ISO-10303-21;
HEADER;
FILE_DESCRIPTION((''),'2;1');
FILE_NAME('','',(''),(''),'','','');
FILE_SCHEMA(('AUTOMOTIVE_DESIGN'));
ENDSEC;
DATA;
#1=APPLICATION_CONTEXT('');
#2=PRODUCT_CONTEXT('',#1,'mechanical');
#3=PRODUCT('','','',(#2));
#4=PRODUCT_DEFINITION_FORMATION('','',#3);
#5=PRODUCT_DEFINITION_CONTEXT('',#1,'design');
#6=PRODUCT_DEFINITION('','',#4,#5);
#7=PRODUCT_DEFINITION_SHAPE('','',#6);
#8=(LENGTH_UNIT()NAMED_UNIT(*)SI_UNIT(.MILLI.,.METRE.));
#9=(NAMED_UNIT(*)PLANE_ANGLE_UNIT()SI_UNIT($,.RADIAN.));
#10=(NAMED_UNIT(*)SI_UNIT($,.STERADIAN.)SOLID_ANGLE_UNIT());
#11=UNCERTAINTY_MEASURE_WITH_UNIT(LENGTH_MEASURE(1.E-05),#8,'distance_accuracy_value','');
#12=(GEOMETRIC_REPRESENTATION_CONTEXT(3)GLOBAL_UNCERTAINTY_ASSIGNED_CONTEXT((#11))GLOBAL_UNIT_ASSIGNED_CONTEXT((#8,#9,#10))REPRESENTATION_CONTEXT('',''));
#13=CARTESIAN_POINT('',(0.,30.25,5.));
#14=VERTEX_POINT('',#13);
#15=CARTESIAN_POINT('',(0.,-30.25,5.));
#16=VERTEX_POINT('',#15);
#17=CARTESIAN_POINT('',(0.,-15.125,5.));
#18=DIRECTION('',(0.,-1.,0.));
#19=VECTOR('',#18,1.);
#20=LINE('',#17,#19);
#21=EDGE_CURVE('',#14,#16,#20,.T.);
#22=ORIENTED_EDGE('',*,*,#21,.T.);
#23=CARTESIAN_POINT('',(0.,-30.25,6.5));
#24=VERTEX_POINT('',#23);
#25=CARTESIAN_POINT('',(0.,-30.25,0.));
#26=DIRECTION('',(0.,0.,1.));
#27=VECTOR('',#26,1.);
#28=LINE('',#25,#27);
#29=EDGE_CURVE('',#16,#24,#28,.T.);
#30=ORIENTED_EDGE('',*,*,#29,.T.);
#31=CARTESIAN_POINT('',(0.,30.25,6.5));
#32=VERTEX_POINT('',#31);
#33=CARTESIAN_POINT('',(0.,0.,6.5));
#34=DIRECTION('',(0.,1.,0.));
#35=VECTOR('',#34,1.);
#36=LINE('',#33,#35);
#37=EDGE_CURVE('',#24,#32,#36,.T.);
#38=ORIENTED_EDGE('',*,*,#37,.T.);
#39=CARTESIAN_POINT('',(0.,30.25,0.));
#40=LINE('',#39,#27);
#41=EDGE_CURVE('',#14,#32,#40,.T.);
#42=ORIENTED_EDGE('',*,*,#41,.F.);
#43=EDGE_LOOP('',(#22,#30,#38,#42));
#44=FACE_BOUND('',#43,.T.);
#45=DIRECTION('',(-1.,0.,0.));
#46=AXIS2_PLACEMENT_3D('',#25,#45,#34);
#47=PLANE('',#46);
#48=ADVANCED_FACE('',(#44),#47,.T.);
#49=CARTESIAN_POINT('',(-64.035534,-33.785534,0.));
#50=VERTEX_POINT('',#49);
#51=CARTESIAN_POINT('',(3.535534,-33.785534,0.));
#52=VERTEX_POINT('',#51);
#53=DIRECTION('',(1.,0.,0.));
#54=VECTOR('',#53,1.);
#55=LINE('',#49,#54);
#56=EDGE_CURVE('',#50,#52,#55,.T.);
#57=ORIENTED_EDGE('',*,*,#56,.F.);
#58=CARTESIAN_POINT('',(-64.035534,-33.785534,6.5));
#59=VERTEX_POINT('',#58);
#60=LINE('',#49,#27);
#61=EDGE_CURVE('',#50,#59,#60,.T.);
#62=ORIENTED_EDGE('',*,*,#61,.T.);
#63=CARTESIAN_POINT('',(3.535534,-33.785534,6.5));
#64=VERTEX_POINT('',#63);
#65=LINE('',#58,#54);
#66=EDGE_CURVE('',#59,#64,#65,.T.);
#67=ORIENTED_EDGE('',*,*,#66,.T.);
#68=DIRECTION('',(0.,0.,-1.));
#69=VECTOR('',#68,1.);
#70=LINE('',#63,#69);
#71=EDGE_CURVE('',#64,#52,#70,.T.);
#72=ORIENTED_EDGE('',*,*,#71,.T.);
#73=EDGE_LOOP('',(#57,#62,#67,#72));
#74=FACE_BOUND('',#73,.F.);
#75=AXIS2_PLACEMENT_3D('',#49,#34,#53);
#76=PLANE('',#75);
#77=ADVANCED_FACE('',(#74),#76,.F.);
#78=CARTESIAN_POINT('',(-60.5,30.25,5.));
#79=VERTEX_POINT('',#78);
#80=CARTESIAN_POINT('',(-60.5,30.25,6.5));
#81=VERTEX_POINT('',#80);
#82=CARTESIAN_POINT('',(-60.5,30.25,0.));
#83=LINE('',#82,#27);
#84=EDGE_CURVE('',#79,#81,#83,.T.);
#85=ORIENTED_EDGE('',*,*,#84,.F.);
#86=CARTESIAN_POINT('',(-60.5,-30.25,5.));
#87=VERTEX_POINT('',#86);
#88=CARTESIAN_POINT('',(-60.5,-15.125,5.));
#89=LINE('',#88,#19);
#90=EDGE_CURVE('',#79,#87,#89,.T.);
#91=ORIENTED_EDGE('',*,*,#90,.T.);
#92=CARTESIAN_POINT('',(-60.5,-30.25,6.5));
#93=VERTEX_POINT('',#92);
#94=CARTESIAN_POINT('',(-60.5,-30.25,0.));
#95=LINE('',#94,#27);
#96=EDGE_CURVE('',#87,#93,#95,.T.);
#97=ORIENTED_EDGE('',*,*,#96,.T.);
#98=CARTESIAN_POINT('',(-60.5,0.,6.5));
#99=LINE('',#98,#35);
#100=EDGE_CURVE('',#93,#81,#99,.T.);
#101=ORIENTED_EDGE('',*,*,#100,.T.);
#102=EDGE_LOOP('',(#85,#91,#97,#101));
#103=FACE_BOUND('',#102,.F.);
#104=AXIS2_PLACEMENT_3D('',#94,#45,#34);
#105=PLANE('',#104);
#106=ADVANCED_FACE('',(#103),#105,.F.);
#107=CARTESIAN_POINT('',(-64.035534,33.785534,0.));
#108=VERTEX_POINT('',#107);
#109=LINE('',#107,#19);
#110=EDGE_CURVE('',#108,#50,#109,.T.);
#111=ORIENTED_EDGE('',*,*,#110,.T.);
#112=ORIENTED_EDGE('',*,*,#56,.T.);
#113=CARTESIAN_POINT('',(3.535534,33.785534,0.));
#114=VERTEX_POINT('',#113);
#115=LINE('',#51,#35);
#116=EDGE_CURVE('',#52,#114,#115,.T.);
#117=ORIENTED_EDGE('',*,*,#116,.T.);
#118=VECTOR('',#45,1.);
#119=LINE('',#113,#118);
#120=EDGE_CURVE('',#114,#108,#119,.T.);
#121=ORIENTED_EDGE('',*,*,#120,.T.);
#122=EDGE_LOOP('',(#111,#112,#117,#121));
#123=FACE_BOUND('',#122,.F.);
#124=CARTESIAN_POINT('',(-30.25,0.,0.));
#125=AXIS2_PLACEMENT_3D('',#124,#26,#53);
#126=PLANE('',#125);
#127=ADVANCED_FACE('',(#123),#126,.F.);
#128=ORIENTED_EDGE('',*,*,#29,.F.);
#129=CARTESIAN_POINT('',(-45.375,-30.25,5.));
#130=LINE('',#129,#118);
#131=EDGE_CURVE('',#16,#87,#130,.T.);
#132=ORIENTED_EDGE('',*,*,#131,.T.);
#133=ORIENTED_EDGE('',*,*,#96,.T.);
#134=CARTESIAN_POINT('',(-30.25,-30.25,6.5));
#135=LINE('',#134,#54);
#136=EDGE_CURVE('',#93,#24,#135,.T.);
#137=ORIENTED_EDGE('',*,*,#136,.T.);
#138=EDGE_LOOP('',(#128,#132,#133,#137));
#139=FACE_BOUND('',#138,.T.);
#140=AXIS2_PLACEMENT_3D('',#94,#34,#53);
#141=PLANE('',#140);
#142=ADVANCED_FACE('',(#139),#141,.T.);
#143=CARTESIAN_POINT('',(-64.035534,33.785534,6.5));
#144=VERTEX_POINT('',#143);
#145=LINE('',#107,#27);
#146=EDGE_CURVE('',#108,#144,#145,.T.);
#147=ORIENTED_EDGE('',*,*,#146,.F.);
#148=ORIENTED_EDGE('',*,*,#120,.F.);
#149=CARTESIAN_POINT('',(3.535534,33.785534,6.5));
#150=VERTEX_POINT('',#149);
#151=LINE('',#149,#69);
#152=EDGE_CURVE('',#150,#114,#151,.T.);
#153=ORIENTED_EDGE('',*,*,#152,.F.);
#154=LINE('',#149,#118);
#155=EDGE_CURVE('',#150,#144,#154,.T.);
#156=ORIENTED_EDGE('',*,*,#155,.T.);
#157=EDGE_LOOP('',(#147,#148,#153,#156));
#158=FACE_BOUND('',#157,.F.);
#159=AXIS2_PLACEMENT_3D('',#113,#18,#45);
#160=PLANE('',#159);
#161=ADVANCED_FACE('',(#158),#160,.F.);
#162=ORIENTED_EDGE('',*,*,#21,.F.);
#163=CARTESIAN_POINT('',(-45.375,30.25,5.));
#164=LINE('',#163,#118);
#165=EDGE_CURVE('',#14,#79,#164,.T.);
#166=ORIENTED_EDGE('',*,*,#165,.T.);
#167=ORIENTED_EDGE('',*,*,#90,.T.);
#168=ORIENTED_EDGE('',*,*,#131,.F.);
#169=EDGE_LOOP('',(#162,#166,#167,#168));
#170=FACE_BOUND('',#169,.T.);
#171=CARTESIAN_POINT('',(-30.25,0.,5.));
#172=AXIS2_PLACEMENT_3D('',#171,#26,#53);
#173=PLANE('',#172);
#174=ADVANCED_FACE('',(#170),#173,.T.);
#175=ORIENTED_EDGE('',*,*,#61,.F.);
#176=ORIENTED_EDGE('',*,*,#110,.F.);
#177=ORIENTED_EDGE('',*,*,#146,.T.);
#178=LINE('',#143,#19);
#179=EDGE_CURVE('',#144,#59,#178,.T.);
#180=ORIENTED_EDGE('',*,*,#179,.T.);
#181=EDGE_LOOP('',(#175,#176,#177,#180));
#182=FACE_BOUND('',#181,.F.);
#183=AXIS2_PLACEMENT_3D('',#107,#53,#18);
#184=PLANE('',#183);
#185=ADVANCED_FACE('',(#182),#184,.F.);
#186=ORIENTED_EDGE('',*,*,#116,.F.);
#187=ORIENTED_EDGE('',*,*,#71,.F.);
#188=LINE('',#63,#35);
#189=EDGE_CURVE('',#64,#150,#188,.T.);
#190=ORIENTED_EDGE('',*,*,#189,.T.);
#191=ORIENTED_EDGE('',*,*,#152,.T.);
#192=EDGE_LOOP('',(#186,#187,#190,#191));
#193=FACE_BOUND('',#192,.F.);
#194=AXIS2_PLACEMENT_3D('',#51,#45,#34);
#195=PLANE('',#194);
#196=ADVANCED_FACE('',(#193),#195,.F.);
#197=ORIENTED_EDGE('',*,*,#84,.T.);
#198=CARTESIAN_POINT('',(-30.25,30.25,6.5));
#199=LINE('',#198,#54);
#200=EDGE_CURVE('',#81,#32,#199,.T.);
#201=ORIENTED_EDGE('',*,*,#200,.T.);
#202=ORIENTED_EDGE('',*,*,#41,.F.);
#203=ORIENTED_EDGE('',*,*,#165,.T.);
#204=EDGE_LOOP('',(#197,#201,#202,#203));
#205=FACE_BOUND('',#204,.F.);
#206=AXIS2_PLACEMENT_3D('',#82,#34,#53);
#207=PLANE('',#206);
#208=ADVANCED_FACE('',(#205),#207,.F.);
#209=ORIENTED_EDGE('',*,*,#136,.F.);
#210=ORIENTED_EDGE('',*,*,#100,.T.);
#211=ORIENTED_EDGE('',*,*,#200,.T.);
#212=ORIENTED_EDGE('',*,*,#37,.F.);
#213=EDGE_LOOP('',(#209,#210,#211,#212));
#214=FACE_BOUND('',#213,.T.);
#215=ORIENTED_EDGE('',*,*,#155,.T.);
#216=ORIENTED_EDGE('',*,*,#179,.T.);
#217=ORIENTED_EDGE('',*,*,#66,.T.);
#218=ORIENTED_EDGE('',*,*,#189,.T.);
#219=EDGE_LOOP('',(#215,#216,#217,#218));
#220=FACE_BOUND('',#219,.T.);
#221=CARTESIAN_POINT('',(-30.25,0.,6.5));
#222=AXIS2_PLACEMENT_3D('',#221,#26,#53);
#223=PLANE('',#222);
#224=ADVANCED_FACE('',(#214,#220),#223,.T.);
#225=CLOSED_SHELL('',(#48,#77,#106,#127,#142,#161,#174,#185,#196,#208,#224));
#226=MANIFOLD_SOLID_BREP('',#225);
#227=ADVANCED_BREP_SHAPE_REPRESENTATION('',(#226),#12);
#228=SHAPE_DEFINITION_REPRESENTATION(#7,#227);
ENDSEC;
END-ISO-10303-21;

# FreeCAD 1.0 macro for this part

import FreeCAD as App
import Part
import Sketcher
from FreeCAD import Vector
Q = App.Units.Quantity

doc = App.newDocument("Part")
body = doc.addObject("PartDesign::Body", "Body")

# Sketch on XY plane
sketch1 = body.newObject("Sketcher::SketchObject", "Sketch")
sketch1.AttachmentSupport = (doc.getObject("XY_Plane"), [""])
sketch1.MapMode = "FlatFace"
sketch1.addGeometry([
    Part.LineSegment(Vector(3.535534, 33.785534, 0), Vector(-64.035534, 33.785534, 0)),
    Part.LineSegment(Vector(-64.035534, 33.785534, 0), Vector(-64.035534, -33.785534, 0)),
    Part.LineSegment(Vector(-64.035534, -33.785534, 0), Vector(3.535534, -33.785534, 0)),
    Part.LineSegment(Vector(3.535534, -33.785534, 0), Vector(3.535534, 33.785534, 0)),
], False)
sketch1.addConstraint([
    Sketcher.Constraint("Coincident", 0, 2, 1, 1),
    Sketcher.Constraint("Coincident", 1, 2, 2, 1),
    Sketcher.Constraint("Coincident", 2, 2, 3, 1),
    Sketcher.Constraint("Coincident", 3, 2, 0, 1),
    Sketcher.Constraint("Horizontal", 0),
    Sketcher.Constraint("Vertical", 1),
    Sketcher.Constraint("Horizontal", 2),
    Sketcher.Constraint("Vertical", 3),
    Sketcher.Constraint("Equal", 2, 1),
    Sketcher.Constraint("DistanceX", 0, 2, 0, 1, Q("67.571068 mm")),
    Sketcher.Constraint("DistanceX", 0, 2, -1, 1, Q("64.035534 mm")),
    Sketcher.Constraint("DistanceY", -1, 1, 0, 2, Q("33.785534 mm")),
])
pad1 = body.newObject("PartDesign::Pad", "Pad")
pad1.Profile = sketch1
pad1.Length = 5

# Sketch on XY plane
sketch2 = body.newObject("Sketcher::SketchObject", "Sketch001")
sketch2.AttachmentSupport = (doc.getObject("XY_Plane"), [""])
sketch2.MapMode = "FlatFace"
sketch2.addGeometry([
    Part.LineSegment(Vector(3.535534, 33.785534, 0), Vector(-64.035534, 33.785534, 0)),  # 0
    Part.LineSegment(Vector(-64.035534, 33.785534, 0), Vector(-64.035534, -33.785534, 0)),  # 1
    Part.LineSegment(Vector(-64.035534, -33.785534, 0), Vector(3.535534, -33.785534, 0)),  # 2
    Part.LineSegment(Vector(3.535534, -33.785534, 0), Vector(3.535534, 33.785534, 0)),  # 3
    Part.LineSegment(Vector(0, -30.25, 0), Vector(-60.5, -30.25, 0)),  # 4
    Part.LineSegment(Vector(-60.5, -30.25, 0), Vector(-60.5, 30.25, 0)),  # 5
    Part.LineSegment(Vector(-60.5, 30.25, 0), Vector(0, 30.25, 0)),  # 6
    Part.LineSegment(Vector(0, 30.25, 0), Vector(0, -30.25, 0)),  # 7
], False)
sketch2.addConstraint([
    Sketcher.Constraint("Coincident", 0, 2, 1, 1),
    Sketcher.Constraint("Coincident", 1, 2, 2, 1),
    Sketcher.Constraint("Coincident", 2, 2, 3, 1),
    Sketcher.Constraint("Coincident", 3, 2, 0, 1),
    Sketcher.Constraint("Coincident", 4, 2, 5, 1),
    Sketcher.Constraint("Coincident", 5, 2, 6, 1),
    Sketcher.Constraint("Coincident", 6, 2, 7, 1),
    Sketcher.Constraint("Coincident", 7, 2, 4, 1),
    Sketcher.Constraint("Horizontal", 0),
    Sketcher.Constraint("Vertical", 1),
    Sketcher.Constraint("Horizontal", 2),
    Sketcher.Constraint("Vertical", 3),
    Sketcher.Constraint("Horizontal", 4),
    Sketcher.Constraint("Vertical", 5),
    Sketcher.Constraint("Horizontal", 6),
    Sketcher.Constraint("Vertical", 7),
    Sketcher.Constraint("Symmetric", 6, 2, 7, 2, -1, 1),
    Sketcher.Constraint("Equal", 2, 1),
    Sketcher.Constraint("Equal", 6, 5),
    Sketcher.Constraint("DistanceX", 4, 2, 4, 1, Q("60.5 mm")),
    Sketcher.Constraint("DistanceX", 0, 2, 0, 1, Q("67.571068 mm")),
    Sketcher.Constraint("DistanceX", 0, 2, -1, 1, Q("64.035534 mm")),
    Sketcher.Constraint("DistanceY", -1, 1, 0, 2, Q("33.785534 mm")),
])
pad2 = body.newObject("PartDesign::Pad", "Pad001")
pad2.Profile = sketch2
pad2.Length = 6.5

doc.recompute()
